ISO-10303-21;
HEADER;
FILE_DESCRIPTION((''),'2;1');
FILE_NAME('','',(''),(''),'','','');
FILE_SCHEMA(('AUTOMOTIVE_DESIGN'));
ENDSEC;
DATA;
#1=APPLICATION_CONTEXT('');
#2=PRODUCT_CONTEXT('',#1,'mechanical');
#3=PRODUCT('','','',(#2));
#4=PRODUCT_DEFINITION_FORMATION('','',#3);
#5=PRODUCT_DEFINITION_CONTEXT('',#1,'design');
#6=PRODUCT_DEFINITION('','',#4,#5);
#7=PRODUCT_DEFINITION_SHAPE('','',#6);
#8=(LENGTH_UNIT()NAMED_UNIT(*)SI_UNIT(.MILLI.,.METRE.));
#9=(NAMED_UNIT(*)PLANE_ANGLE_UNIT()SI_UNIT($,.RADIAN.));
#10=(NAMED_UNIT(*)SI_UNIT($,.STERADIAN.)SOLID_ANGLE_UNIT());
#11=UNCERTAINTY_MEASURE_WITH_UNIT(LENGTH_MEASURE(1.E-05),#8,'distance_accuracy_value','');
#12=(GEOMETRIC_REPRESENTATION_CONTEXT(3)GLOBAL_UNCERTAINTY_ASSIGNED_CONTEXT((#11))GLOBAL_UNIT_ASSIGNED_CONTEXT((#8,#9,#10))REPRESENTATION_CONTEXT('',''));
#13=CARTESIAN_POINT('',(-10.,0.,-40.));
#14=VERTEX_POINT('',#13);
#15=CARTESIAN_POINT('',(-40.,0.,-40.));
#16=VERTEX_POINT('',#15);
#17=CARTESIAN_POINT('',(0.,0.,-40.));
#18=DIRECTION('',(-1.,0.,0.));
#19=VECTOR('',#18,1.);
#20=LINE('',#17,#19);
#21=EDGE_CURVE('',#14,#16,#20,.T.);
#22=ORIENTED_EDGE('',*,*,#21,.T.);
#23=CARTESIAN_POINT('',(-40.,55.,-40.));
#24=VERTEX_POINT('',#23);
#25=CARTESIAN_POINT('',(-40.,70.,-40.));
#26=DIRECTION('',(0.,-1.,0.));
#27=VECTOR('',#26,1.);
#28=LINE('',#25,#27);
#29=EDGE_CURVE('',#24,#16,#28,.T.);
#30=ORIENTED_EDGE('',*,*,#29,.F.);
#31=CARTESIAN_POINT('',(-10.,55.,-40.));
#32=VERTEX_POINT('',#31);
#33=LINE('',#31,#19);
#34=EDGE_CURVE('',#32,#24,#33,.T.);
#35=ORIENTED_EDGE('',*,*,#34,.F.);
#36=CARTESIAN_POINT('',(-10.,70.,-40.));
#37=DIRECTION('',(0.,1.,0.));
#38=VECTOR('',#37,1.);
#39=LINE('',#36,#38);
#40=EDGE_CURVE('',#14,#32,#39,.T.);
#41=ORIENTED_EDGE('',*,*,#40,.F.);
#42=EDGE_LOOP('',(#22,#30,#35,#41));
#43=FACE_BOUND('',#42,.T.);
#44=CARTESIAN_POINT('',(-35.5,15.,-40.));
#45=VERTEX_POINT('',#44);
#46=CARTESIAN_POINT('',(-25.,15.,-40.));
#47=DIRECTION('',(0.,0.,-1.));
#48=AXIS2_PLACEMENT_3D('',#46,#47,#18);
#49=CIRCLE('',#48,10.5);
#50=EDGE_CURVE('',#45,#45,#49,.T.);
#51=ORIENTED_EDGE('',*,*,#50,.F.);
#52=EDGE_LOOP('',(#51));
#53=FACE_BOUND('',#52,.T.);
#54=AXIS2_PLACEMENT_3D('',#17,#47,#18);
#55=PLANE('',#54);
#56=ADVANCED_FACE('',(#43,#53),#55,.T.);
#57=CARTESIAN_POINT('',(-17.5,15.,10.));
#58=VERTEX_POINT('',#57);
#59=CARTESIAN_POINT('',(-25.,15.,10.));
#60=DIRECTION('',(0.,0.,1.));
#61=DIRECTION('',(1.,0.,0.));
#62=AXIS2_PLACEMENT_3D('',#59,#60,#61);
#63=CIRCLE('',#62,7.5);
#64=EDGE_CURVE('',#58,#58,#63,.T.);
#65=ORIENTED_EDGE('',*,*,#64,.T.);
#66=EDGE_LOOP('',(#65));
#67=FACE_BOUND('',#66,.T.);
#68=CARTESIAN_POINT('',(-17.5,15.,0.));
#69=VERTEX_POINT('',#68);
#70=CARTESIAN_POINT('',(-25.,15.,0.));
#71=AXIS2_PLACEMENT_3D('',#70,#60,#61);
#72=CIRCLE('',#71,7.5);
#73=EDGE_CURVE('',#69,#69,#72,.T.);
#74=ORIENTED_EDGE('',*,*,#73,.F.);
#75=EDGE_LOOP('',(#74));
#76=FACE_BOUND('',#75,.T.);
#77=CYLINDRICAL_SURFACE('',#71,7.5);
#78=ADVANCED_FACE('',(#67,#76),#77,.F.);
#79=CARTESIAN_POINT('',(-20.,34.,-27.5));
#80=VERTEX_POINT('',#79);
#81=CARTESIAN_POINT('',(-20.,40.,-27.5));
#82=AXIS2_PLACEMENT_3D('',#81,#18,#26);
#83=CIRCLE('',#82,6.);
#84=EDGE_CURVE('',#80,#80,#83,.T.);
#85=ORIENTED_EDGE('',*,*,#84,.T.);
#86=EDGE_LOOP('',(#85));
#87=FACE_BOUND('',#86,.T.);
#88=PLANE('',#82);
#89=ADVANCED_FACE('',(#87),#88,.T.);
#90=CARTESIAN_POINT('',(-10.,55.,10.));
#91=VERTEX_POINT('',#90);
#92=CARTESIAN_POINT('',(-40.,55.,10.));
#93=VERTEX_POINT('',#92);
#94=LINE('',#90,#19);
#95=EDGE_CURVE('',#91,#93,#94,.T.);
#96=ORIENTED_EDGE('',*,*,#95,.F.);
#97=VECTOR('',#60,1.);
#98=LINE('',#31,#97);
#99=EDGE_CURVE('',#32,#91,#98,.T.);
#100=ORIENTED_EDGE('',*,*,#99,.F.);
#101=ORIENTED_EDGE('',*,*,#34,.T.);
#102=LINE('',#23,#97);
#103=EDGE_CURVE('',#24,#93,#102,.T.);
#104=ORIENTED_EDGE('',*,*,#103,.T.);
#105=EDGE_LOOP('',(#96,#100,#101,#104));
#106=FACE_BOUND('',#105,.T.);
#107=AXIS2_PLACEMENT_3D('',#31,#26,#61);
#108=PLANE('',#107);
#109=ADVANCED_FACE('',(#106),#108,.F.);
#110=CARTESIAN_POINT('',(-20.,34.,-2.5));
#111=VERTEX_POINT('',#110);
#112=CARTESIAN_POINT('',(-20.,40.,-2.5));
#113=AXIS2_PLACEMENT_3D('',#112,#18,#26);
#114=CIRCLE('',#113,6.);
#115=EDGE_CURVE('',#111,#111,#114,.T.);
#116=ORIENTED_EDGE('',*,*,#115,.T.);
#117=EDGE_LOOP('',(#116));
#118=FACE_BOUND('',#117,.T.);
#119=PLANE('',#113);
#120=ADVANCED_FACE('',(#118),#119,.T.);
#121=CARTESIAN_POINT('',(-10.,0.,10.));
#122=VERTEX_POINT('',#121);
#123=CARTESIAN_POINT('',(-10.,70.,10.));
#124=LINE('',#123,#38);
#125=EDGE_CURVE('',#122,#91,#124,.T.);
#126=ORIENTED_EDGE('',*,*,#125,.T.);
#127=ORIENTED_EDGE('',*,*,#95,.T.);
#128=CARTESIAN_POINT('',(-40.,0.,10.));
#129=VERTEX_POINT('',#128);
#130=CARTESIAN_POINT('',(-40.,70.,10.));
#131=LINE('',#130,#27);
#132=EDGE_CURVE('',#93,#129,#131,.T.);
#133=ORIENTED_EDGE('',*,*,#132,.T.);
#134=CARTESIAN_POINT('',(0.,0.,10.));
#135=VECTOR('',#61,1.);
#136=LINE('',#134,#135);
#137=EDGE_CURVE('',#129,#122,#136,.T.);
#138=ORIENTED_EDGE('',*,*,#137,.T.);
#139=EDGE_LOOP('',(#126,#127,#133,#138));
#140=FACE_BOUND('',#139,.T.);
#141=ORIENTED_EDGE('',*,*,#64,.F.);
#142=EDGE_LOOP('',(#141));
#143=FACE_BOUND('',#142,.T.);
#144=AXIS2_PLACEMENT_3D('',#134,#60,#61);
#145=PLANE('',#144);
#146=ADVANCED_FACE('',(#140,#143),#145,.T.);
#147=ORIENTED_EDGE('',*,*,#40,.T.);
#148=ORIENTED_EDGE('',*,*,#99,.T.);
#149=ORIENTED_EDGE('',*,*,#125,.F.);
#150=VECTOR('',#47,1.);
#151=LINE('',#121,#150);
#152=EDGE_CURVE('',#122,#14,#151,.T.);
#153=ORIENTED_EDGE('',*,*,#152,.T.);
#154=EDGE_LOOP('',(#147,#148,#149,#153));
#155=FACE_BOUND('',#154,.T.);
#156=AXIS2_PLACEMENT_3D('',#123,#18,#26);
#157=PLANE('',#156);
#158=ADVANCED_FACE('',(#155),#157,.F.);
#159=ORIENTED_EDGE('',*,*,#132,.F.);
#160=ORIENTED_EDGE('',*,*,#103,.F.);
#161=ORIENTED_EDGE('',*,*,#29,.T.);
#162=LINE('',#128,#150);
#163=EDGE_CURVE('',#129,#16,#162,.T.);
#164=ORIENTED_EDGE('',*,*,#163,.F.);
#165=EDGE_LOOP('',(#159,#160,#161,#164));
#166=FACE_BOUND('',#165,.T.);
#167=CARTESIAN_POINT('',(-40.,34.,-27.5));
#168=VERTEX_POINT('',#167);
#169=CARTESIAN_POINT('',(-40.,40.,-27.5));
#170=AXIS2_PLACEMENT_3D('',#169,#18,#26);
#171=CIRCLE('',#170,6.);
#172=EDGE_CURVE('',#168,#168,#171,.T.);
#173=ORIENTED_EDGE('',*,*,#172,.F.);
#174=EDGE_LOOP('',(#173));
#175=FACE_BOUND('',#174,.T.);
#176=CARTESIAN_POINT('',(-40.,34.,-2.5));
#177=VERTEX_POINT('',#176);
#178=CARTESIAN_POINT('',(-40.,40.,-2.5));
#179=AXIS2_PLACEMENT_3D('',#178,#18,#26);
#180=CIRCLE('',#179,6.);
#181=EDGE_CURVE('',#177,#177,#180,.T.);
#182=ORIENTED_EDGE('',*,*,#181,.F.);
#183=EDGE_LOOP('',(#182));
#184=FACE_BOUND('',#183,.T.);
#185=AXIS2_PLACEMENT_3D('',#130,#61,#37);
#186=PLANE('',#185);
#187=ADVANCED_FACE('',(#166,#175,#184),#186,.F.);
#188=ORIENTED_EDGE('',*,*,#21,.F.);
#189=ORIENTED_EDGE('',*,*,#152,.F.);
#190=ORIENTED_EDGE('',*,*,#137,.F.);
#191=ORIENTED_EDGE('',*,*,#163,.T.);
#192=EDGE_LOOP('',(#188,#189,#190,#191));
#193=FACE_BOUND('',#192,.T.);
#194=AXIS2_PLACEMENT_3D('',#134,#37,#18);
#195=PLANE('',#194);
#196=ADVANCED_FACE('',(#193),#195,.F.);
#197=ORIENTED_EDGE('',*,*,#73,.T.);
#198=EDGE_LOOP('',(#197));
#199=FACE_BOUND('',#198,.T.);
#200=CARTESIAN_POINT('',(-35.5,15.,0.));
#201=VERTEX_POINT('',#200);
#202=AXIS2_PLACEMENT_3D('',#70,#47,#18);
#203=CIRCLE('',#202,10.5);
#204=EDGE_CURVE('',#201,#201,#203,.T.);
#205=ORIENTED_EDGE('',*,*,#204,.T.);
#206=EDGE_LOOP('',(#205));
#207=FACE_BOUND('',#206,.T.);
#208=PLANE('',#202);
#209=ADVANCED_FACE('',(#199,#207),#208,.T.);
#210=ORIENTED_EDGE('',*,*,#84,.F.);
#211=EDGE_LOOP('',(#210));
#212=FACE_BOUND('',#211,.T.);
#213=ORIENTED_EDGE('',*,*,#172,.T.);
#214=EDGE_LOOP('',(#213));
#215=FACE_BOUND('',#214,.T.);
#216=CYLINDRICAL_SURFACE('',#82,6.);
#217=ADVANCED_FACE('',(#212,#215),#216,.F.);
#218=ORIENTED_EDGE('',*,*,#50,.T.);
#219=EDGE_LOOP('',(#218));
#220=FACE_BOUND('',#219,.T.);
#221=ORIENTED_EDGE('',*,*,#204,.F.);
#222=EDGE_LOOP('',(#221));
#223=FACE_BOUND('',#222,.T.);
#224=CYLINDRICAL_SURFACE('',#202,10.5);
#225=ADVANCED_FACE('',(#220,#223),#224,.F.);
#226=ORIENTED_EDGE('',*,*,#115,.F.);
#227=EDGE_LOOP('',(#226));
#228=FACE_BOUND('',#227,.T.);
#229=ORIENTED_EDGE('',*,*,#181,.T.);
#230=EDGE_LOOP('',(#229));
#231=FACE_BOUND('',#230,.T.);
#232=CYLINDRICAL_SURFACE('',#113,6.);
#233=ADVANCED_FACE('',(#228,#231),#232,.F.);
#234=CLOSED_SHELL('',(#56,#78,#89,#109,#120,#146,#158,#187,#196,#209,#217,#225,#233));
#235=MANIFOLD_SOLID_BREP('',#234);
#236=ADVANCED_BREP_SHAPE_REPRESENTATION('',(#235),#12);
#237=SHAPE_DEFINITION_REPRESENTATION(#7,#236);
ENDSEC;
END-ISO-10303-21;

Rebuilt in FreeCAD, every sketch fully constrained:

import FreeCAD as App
import Part
import Sketcher

V = App.Vector
Q = App.Units.Quantity


def add_polygon(sketch, points):
    """Adds a closed chain of lines whose ends are joined by coincident constraints."""
    first, n = sketch.GeometryCount, len(points)
    for a, b in zip(points, points[1:] + points[:1]):
        sketch.addGeometry(Part.LineSegment(App.Vector(*a, 0), App.Vector(*b, 0)), False)
    for i in range(n):
        sketch.addConstraint(Sketcher.Constraint("Coincident", first + i, 2, first + (i + 1) % n, 1))

doc = App.newDocument("Part")
body = doc.addObject("PartDesign::Body", "Body")

# Sketch on XY plane
sketch1 = doc.addObject("Sketcher::SketchObject", "Sketch")
body.addObject(sketch1)
sketch1.AttachmentSupport = (doc.XY_Plane, [""])
sketch1.MapMode = "FlatFace"
add_polygon(sketch1, [(-50, 70), (-50, 0), (0, 0), (0, 70)])  # lines 0-3
sketch1.addConstraint([
    Sketcher.Constraint("Vertical", 0),
    Sketcher.Constraint("Horizontal", 1),
    Sketcher.Constraint("Vertical", 2),
    Sketcher.Constraint("Horizontal", 3),
    Sketcher.Constraint("Coincident", 1, 2, -1, 1),
    Sketcher.Constraint("DistanceX", 1, 1, 1, 2, Q("50 mm")),
    Sketcher.Constraint("DistanceY", 0, 2, 0, 1, Q("70 mm")),
])
pad1 = doc.addObject("PartDesign::Pad", "Pad")
body.addObject(pad1)
pad1.Profile = sketch1
pad1.Length = 10

# Sketch on XY plane
sketch2 = doc.addObject("Sketcher::SketchObject", "Sketch001")
body.addObject(sketch2)
sketch2.AttachmentSupport = (doc.XY_Plane, [""])
sketch2.MapMode = "FlatFace"
sketch2.AttachmentOffset = App.Placement(V(0, 0, 10), App.Rotation())
sketch2.addGeometry(Part.Circle(V(-25, 15, 0), V(0, 0, 1), 7.5), False)
sketch2.addConstraint([
    Sketcher.Constraint("Diameter", 0, Q("15 mm")),
    Sketcher.Constraint("DistanceX", 0, 3, -1, 1, Q("25 mm")),
    Sketcher.Constraint("DistanceY", -1, 1, 0, 3, Q("15 mm")),
])
pocket1 = doc.addObject("PartDesign::Pocket", "Pocket")
body.addObject(pocket1)
pocket1.Profile = sketch2
pocket1.Length = 10

# Sketch on XY plane
sketch3 = doc.addObject("Sketcher::SketchObject", "Sketch002")
body.addObject(sketch3)
sketch3.AttachmentSupport = (doc.XY_Plane, [""])
sketch3.MapMode = "FlatFace"
add_polygon(sketch3, [(0, 70), (0, 0), (-50, 0), (-50, 70)])  # lines 0-3
sketch3.addConstraint([
    Sketcher.Constraint("Vertical", 0),
    Sketcher.Constraint("Horizontal", 1),
    Sketcher.Constraint("Vertical", 2),
    Sketcher.Constraint("Horizontal", 3),
    Sketcher.Constraint("Coincident", 0, 2, -1, 1),
    Sketcher.Constraint("DistanceX", 1, 2, 1, 1, Q("50 mm")),
    Sketcher.Constraint("DistanceY", 0, 2, 0, 1, Q("70 mm")),
])
pad2 = doc.addObject("PartDesign::Pad", "Pad001")
body.addObject(pad2)
pad2.Profile = sketch3
pad2.Length = 40
pad2.Reversed = True

# Sketch on XY plane
sketch4 = doc.addObject("Sketcher::SketchObject", "Sketch003")
body.addObject(sketch4)
sketch4.AttachmentSupport = (doc.XY_Plane, [""])
sketch4.MapMode = "FlatFace"
sketch4.AttachmentOffset = App.Placement(V(0, 0, -40), App.Rotation())
sketch4.addGeometry(Part.Circle(V(-25, 15, 0), V(0, 0, 1), 10.5), False)
sketch4.addConstraint([
    Sketcher.Constraint("Diameter", 0, Q("21 mm")),
    Sketcher.Constraint("DistanceX", 0, 3, -1, 1, Q("25 mm")),
    Sketcher.Constraint("DistanceY", -1, 1, 0, 3, Q("15 mm")),
])
pocket2 = doc.addObject("PartDesign::Pocket", "Pocket001")
body.addObject(pocket2)
pocket2.Profile = sketch4
pocket2.Length = 40
pocket2.Reversed = True

# Sketch on XY plane
sketch5 = doc.addObject("Sketcher::SketchObject", "Sketch004")
body.addObject(sketch5)
sketch5.AttachmentSupport = (doc.XY_Plane, [""])
sketch5.MapMode = "FlatFace"
sketch5.AttachmentOffset = App.Placement(V(0, 0, -40), App.Rotation())
add_polygon(sketch5, [(0, 70), (0, 0), (-10, 0), (-10, 70)])  # lines 0-3
add_polygon(sketch5, [(-40, 70), (-40, 0), (-50, 0), (-50, 70)])  # lines 4-7
sketch5.addConstraint([
    Sketcher.Constraint("Vertical", 0),
    Sketcher.Constraint("Horizontal", 1),
    Sketcher.Constraint("Vertical", 2),
    Sketcher.Constraint("Horizontal", 3),
    Sketcher.Constraint("Vertical", 4),
    Sketcher.Constraint("Horizontal", 5),
    Sketcher.Constraint("Vertical", 6),
    Sketcher.Constraint("Horizontal", 7),
    Sketcher.Constraint("Coincident", 0, 2, -1, 1),
    Sketcher.Constraint("PointOnObject", 4, 2, -1),
    Sketcher.Constraint("Horizontal", 3, 2, 6, 2),
    Sketcher.Constraint("Equal", 3, 5),
    Sketcher.Constraint("DistanceX", 1, 2, 1, 1, Q("10 mm")),
    Sketcher.Constraint("DistanceY", 0, 2, 0, 1, Q("70 mm")),
    Sketcher.Constraint("DistanceX", 4, 2, -1, 1, Q("40 mm")),
])
pocket3 = doc.addObject("PartDesign::Pocket", "Pocket002")
body.addObject(pocket3)
pocket3.Profile = sketch5
pocket3.Length = 50
pocket3.Reversed = True

# Sketch on YZ plane
sketch6 = doc.addObject("Sketcher::SketchObject", "Sketch005")
body.addObject(sketch6)
sketch6.AttachmentSupport = (doc.YZ_Plane, [""])
sketch6.MapMode = "FlatFace"
sketch6.AttachmentOffset = App.Placement(V(0, 0, -40), App.Rotation())
sketch6.addGeometry([
    Part.Circle(V(40, -27.5, 0), V(0, 0, 1), 6),
    Part.Circle(V(40, -2.5, 0), V(0, 0, 1), 6),
], False)
sketch6.addConstraint([
    Sketcher.Constraint("Equal", 0, 1),
    Sketcher.Constraint("Vertical", 0, 3, 1, 3),
    Sketcher.Constraint("Diameter", 0, Q("12 mm")),
    Sketcher.Constraint("DistanceX", -1, 1, 0, 3, Q("40 mm")),
    Sketcher.Constraint("DistanceY", 0, 3, 1, 3, Q("25 mm")),
    Sketcher.Constraint("DistanceY", 0, 3, -1, 1, Q("27.5 mm")),
])
pocket4 = doc.addObject("PartDesign::Pocket", "Pocket003")
body.addObject(pocket4)
pocket4.Profile = sketch6
pocket4.Length = 20
pocket4.Reversed = True

# Sketch on YZ plane
sketch7 = doc.addObject("Sketcher::SketchObject", "Sketch006")
body.addObject(sketch7)
sketch7.AttachmentSupport = (doc.YZ_Plane, [""])
sketch7.MapMode = "FlatFace"
sketch7.AttachmentOffset = App.Placement(V(0, 0, -40), App.Rotation())
add_polygon(sketch7, [(70, -40), (55, -40), (55, 10), (70, 10)])  # lines 0-3
sketch7.addConstraint([
    Sketcher.Constraint("Horizontal", 0),
    Sketcher.Constraint("Vertical", 1),
    Sketcher.Constraint("Horizontal", 2),
    Sketcher.Constraint("Vertical", 3),
    Sketcher.Constraint("DistanceX", 0, 2, 0, 1, Q("15 mm")),
    Sketcher.Constraint("DistanceY", 1, 1, 1, 2, Q("50 mm")),
    Sketcher.Constraint("DistanceX", -1, 1, 0, 2, Q("55 mm")),
    Sketcher.Constraint("DistanceY", 0, 2, -1, 1, Q("40 mm")),
])
pocket5 = doc.addObject("PartDesign::Pocket", "Pocket004")
body.addObject(pocket5)
pocket5.Profile = sketch7
pocket5.Length = 30
pocket5.Reversed = True

doc.recompute()
